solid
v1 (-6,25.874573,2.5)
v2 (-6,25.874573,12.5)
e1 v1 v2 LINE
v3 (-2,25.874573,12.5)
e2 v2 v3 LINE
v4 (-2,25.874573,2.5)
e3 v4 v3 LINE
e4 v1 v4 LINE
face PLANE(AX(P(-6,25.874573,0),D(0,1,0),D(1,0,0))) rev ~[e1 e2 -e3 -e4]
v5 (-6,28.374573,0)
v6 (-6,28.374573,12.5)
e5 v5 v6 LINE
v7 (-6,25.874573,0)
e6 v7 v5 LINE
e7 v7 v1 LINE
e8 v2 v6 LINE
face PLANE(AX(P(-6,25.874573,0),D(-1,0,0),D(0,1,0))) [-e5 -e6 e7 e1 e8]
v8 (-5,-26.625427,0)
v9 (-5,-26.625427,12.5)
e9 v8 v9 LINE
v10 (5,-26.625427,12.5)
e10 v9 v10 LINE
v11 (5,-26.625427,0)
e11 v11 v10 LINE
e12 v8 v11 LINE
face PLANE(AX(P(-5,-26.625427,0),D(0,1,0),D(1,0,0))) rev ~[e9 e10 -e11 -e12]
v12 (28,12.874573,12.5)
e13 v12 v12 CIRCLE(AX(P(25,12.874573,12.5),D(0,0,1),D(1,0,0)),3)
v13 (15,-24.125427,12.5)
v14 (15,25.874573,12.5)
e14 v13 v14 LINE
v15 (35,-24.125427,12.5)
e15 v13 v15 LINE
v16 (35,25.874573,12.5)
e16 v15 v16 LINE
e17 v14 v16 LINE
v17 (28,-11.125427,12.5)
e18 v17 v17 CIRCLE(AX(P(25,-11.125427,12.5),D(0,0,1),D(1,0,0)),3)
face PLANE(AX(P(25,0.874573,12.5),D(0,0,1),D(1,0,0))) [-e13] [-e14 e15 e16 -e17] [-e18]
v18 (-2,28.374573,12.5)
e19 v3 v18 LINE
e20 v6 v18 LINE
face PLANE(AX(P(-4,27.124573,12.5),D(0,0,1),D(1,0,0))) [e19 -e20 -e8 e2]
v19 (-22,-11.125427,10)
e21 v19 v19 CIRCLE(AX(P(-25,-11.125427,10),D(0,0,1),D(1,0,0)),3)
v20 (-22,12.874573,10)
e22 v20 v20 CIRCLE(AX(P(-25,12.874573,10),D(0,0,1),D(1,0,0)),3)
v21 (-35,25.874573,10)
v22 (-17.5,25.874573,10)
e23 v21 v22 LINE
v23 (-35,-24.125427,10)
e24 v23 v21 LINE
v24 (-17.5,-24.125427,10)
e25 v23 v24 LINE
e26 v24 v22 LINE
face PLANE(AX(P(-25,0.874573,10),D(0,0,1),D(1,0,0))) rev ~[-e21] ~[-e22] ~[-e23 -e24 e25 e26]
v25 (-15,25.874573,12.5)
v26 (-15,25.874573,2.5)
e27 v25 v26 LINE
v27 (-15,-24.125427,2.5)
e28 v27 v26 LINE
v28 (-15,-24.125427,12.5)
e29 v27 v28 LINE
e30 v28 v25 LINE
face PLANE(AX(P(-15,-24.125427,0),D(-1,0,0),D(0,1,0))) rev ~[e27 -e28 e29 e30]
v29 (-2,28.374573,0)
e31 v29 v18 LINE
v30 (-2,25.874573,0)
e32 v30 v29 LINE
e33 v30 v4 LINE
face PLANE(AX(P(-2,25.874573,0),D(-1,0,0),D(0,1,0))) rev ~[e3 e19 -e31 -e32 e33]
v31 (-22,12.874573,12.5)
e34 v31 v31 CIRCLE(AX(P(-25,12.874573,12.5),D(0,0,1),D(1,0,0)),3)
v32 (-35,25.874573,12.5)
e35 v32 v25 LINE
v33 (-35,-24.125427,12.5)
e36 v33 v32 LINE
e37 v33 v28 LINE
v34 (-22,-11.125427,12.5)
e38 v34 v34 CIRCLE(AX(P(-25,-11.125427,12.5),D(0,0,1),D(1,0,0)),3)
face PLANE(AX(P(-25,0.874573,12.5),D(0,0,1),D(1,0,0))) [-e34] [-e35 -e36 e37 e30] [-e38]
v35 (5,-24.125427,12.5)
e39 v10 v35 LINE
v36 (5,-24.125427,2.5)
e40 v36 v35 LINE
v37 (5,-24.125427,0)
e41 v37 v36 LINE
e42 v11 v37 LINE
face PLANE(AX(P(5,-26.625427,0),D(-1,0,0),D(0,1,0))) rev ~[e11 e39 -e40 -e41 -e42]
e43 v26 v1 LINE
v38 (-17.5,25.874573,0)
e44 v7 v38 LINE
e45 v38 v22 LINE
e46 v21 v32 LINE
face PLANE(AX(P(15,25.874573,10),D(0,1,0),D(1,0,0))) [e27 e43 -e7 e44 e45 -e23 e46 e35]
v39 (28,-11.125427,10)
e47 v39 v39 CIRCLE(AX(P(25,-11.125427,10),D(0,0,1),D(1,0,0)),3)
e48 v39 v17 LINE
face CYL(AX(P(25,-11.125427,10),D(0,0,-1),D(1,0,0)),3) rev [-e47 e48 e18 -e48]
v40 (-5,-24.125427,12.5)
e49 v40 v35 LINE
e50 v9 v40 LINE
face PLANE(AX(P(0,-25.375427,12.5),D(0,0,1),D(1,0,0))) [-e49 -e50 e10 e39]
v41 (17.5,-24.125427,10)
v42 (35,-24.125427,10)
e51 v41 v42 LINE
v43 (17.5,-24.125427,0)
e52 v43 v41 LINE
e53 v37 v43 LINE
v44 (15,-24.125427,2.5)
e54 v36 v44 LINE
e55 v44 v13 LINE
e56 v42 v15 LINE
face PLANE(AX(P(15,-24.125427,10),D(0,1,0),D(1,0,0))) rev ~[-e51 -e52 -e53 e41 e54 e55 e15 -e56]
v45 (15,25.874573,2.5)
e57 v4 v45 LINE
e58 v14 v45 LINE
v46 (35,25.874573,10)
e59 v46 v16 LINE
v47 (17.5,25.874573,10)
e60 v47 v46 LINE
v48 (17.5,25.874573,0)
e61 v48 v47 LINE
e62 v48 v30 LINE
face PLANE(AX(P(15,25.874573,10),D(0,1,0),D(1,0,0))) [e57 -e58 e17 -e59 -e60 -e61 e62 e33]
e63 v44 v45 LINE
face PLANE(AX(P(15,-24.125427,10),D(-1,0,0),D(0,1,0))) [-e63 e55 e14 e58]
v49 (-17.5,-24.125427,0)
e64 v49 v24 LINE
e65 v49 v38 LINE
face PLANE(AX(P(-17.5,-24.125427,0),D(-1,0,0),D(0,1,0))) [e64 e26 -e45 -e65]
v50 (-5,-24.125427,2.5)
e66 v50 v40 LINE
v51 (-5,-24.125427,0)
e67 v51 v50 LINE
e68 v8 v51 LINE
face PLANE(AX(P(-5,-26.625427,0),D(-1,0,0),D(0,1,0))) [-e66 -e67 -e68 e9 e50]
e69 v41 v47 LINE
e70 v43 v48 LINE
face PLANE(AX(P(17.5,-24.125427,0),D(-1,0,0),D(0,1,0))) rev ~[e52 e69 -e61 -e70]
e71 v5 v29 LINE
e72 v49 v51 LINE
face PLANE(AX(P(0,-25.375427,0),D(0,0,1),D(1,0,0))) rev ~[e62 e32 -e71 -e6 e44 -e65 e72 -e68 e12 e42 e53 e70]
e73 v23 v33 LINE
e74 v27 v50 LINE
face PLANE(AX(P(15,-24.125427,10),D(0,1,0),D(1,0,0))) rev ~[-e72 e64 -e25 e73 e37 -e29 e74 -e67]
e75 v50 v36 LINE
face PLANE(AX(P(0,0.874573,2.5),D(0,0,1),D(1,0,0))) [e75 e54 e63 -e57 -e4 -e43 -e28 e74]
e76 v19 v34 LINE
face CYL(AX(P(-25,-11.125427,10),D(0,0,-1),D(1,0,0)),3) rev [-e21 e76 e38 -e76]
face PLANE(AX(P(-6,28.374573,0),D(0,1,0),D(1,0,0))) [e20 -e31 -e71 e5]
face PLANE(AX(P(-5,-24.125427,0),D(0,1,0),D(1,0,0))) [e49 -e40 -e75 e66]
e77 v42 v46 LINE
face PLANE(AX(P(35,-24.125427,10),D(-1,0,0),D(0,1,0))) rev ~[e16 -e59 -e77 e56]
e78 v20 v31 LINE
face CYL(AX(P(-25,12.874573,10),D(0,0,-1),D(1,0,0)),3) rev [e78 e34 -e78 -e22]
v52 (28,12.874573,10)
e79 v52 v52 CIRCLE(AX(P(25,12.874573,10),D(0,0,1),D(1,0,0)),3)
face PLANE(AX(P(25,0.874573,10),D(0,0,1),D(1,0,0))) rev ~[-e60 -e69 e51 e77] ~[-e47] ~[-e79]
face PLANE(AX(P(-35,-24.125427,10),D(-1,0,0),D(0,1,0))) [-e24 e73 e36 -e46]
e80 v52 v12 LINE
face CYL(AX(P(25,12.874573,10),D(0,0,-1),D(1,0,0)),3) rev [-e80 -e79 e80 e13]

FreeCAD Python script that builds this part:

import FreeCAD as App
import Part
import Sketcher
from FreeCAD import Vector


def add_polygon(sketch, points):
    """Adds a closed chain of lines whose ends are joined by coincident constraints."""
    first, n = sketch.GeometryCount, len(points)
    for a, b in zip(points, points[1:] + points[:1]):
        sketch.addGeometry(Part.LineSegment(App.Vector(*a, 0), App.Vector(*b, 0)), False)
    for i in range(n):
        sketch.addConstraint(Sketcher.Constraint("Coincident", first + i, 2, first + (i + 1) % n, 1))

doc = App.newDocument("Part")
body = doc.addObject("PartDesign::Body", "Body")

sketch1 = body.newObject("Sketcher::SketchObject", "Sketch")
sketch1.AttachmentSupport = (doc.getObject("XY_Plane"), [""])
sketch1.MapMode = "FlatFace"
add_polygon(sketch1, [(-15, 26), (-15, -24), (15, -24), (15, 26)])
sketch1.addConstraint(Sketcher.Constraint("Vertical", 0))
sketch1.addConstraint(Sketcher.Constraint("Horizontal", 1))
sketch1.addConstraint(Sketcher.Constraint("Vertical", 2))
sketch1.addConstraint(Sketcher.Constraint("Horizontal", 3))
sketch1.addConstraint(Sketcher.Constraint("DistanceX", 1, 1, 1, 2, 30.0))
sketch1.addConstraint(Sketcher.Constraint("DistanceY", 0, 2, 0, 1, 50.0))
sketch1.addConstraint(Sketcher.Constraint("DistanceX", 0, 2, -1, 1, 15.0))
sketch1.addConstraint(Sketcher.Constraint("DistanceY", 0, 2, -1, 1, 24.125427))
pad1 = body.newObject("PartDesign::Pad", "Pad")
pad1.Profile = sketch1
pad1.Length = 2.5

sketch2 = body.newObject("Sketcher::SketchObject", "Sketch001")
sketch2.AttachmentSupport = (doc.getObject("XY_Plane"), [""])
sketch2.MapMode = "FlatFace"
add_polygon(sketch2, [(15, 25.9), (15, -24.1), (17.5, -24.1), (17.5, 25.9)])
add_polygon(sketch2, [(-17.5, 25.9), (-17.5, -24.1), (-15, -24.1), (-15, 25.9)])
sketch2.addConstraint(Sketcher.Constraint("Vertical", 0))
sketch2.addConstraint(Sketcher.Constraint("Horizontal", 1))
sketch2.addConstraint(Sketcher.Constraint("Vertical", 2))
sketch2.addConstraint(Sketcher.Constraint("Horizontal", 3))
sketch2.addConstraint(Sketcher.Constraint("Vertical", 4))
sketch2.addConstraint(Sketcher.Constraint("Horizontal", 5))
sketch2.addConstraint(Sketcher.Constraint("Vertical", 6))
sketch2.addConstraint(Sketcher.Constraint("Horizontal", 7))
sketch2.addConstraint(Sketcher.Constraint("Symmetric", 1, 2, 4, 2, -2))
sketch2.addConstraint(Sketcher.Constraint("Symmetric", 3, 2, 6, 2, -2))
sketch2.addConstraint(Sketcher.Constraint("DistanceY", 0, 2, 0, 1, 50.0))
sketch2.addConstraint(Sketcher.Constraint("DistanceX", 1, 1, 1, 2, 2.5))
sketch2.addConstraint(Sketcher.Constraint("DistanceX", -1, 1, 0, 2, 15.0))
sketch2.addConstraint(Sketcher.Constraint("DistanceY", 0, 2, -1, 1, 24.125427))
pad2 = body.newObject("PartDesign::Pad", "Pad001")
pad2.Profile = sketch2
pad2.Length = 10

sketch3 = body.newObject("Sketcher::SketchObject", "Sketch002")
sketch3.AttachmentSupport = (doc.getObject("XY_Plane"), [""])
sketch3.MapMode = "FlatFace"
sketch3.AttachmentOffset = App.Placement(Vector(0, 0, 10), App.Rotation())
add_polygon(sketch3, [(15, 25.9), (15, -24.1), (35, -24.1), (35, 25.9)])
sketch3.addGeometry(Part.Circle(Vector(25, -11.1, 0), Vector(0, 0, 1), 3), False)
sketch3.addGeometry(Part.Circle(Vector(25, 12.9, 0), Vector(0, 0, 1), 3), False)
add_polygon(sketch3, [(-35, 25.9), (-35, -24.1), (-15, -24.1), (-15, 25.9)])
sketch3.addGeometry(Part.Circle(Vector(-25, -11.1, 0), Vector(0, 0, 1), 3), False)
sketch3.addGeometry(Part.Circle(Vector(-25, 12.9, 0), Vector(0, 0, 1), 3), False)
sketch3.addConstraint(Sketcher.Constraint("Vertical", 0))
sketch3.addConstraint(Sketcher.Constraint("Horizontal", 1))
sketch3.addConstraint(Sketcher.Constraint("Vertical", 2))
sketch3.addConstraint(Sketcher.Constraint("Horizontal", 3))
sketch3.addConstraint(Sketcher.Constraint("Vertical", 6))
sketch3.addConstraint(Sketcher.Constraint("Horizontal", 7))
sketch3.addConstraint(Sketcher.Constraint("Vertical", 8))
sketch3.addConstraint(Sketcher.Constraint("Horizontal", 9))
sketch3.addConstraint(Sketcher.Constraint("Equal", 4, 5))
sketch3.addConstraint(Sketcher.Constraint("Equal", 5, 10))
sketch3.addConstraint(Sketcher.Constraint("Equal", 10, 11))
sketch3.addConstraint(Sketcher.Constraint("Symmetric", 4, 3, 10, 3, -2))
sketch3.addConstraint(Sketcher.Constraint("Symmetric", 5, 3, 11, 3, -2))
sketch3.addConstraint(Sketcher.Constraint("Symmetric", 1, 2, 6, 2, -2))
sketch3.addConstraint(Sketcher.Constraint("Symmetric", 3, 2, 8, 2, -2))
sketch3.addConstraint(Sketcher.Constraint("Vertical", 4, 3, 5, 3))
sketch3.addConstraint(Sketcher.Constraint("Diameter", 4, 6.0))
sketch3.addConstraint(Sketcher.Constraint("DistanceX", 1, 1, 1, 2, 20.0))
sketch3.addConstraint(Sketcher.Constraint("DistanceY", 0, 2, 0, 1, 50.0))
sketch3.addConstraint(Sketcher.Constraint("DistanceX", -1, 1, 4, 3, 25.0))
sketch3.addConstraint(Sketcher.Constraint("DistanceX", -1, 1, 0, 2, 15.0))
sketch3.addConstraint(Sketcher.Constraint("DistanceY", 4, 3, 5, 3, 24.0))
sketch3.addConstraint(Sketcher.Constraint("DistanceY", 0, 2, 4, 3, 13.0))
sketch3.addConstraint(Sketcher.Constraint("DistanceY", 4, 3, -1, 1, 11.125427))
pad3 = body.newObject("PartDesign::Pad", "Pad002")
pad3.Profile = sketch3
pad3.Length = 2.5

sketch4 = body.newObject("Sketcher::SketchObject", "Sketch003")
sketch4.AttachmentSupport = (doc.getObject("XY_Plane"), [""])
sketch4.MapMode = "FlatFace"
add_polygon(sketch4, [(-6, 28.4), (-6, 25.9), (-2, 25.9), (-2, 28.4)])
sketch4.addConstraint(Sketcher.Constraint("Vertical", 0))
sketch4.addConstraint(Sketcher.Constraint("Horizontal", 1))
sketch4.addConstraint(Sketcher.Constraint("Vertical", 2))
sketch4.addConstraint(Sketcher.Constraint("Horizontal", 3))
sketch4.addConstraint(Sketcher.Constraint("DistanceX", 1, 1, 1, 2, 4.0))
sketch4.addConstraint(Sketcher.Constraint("DistanceY", 0, 2, 0, 1, 2.5))
sketch4.addConstraint(Sketcher.Constraint("DistanceX", 0, 2, -1, 1, 6.0))
sketch4.addConstraint(Sketcher.Constraint("DistanceY", -1, 1, 0, 2, 25.874573))
pad4 = body.newObject("PartDesign::Pad", "Pad003")
pad4.Profile = sketch4
pad4.Length = 12.5

sketch5 = body.newObject("Sketcher::SketchObject", "Sketch004")
sketch5.AttachmentSupport = (doc.getObject("XY_Plane"), [""])
sketch5.MapMode = "FlatFace"
add_polygon(sketch5, [(-5, -24.1), (-5, -26.6), (5, -26.6), (5, -24.1)])
sketch5.addConstraint(Sketcher.Constraint("Vertical", 0))
sketch5.addConstraint(Sketcher.Constraint("Horizontal", 1))
sketch5.addConstraint(Sketcher.Constraint("Vertical", 2))
sketch5.addConstraint(Sketcher.Constraint("Horizontal", 3))
sketch5.addConstraint(Sketcher.Constraint("DistanceX", 1, 1, 1, 2, 10.0))
sketch5.addConstraint(Sketcher.Constraint("DistanceY", 0, 2, 0, 1, 2.5))
sketch5.addConstraint(Sketcher.Constraint("DistanceX", 0, 2, -1, 1, 5.0))
sketch5.addConstraint(Sketcher.Constraint("DistanceY", 0, 2, -1, 1, 26.625427))
pad5 = body.newObject("PartDesign::Pad", "Pad004")
pad5.Profile = sketch5
pad5.Length = 12.5

doc.recompute()
